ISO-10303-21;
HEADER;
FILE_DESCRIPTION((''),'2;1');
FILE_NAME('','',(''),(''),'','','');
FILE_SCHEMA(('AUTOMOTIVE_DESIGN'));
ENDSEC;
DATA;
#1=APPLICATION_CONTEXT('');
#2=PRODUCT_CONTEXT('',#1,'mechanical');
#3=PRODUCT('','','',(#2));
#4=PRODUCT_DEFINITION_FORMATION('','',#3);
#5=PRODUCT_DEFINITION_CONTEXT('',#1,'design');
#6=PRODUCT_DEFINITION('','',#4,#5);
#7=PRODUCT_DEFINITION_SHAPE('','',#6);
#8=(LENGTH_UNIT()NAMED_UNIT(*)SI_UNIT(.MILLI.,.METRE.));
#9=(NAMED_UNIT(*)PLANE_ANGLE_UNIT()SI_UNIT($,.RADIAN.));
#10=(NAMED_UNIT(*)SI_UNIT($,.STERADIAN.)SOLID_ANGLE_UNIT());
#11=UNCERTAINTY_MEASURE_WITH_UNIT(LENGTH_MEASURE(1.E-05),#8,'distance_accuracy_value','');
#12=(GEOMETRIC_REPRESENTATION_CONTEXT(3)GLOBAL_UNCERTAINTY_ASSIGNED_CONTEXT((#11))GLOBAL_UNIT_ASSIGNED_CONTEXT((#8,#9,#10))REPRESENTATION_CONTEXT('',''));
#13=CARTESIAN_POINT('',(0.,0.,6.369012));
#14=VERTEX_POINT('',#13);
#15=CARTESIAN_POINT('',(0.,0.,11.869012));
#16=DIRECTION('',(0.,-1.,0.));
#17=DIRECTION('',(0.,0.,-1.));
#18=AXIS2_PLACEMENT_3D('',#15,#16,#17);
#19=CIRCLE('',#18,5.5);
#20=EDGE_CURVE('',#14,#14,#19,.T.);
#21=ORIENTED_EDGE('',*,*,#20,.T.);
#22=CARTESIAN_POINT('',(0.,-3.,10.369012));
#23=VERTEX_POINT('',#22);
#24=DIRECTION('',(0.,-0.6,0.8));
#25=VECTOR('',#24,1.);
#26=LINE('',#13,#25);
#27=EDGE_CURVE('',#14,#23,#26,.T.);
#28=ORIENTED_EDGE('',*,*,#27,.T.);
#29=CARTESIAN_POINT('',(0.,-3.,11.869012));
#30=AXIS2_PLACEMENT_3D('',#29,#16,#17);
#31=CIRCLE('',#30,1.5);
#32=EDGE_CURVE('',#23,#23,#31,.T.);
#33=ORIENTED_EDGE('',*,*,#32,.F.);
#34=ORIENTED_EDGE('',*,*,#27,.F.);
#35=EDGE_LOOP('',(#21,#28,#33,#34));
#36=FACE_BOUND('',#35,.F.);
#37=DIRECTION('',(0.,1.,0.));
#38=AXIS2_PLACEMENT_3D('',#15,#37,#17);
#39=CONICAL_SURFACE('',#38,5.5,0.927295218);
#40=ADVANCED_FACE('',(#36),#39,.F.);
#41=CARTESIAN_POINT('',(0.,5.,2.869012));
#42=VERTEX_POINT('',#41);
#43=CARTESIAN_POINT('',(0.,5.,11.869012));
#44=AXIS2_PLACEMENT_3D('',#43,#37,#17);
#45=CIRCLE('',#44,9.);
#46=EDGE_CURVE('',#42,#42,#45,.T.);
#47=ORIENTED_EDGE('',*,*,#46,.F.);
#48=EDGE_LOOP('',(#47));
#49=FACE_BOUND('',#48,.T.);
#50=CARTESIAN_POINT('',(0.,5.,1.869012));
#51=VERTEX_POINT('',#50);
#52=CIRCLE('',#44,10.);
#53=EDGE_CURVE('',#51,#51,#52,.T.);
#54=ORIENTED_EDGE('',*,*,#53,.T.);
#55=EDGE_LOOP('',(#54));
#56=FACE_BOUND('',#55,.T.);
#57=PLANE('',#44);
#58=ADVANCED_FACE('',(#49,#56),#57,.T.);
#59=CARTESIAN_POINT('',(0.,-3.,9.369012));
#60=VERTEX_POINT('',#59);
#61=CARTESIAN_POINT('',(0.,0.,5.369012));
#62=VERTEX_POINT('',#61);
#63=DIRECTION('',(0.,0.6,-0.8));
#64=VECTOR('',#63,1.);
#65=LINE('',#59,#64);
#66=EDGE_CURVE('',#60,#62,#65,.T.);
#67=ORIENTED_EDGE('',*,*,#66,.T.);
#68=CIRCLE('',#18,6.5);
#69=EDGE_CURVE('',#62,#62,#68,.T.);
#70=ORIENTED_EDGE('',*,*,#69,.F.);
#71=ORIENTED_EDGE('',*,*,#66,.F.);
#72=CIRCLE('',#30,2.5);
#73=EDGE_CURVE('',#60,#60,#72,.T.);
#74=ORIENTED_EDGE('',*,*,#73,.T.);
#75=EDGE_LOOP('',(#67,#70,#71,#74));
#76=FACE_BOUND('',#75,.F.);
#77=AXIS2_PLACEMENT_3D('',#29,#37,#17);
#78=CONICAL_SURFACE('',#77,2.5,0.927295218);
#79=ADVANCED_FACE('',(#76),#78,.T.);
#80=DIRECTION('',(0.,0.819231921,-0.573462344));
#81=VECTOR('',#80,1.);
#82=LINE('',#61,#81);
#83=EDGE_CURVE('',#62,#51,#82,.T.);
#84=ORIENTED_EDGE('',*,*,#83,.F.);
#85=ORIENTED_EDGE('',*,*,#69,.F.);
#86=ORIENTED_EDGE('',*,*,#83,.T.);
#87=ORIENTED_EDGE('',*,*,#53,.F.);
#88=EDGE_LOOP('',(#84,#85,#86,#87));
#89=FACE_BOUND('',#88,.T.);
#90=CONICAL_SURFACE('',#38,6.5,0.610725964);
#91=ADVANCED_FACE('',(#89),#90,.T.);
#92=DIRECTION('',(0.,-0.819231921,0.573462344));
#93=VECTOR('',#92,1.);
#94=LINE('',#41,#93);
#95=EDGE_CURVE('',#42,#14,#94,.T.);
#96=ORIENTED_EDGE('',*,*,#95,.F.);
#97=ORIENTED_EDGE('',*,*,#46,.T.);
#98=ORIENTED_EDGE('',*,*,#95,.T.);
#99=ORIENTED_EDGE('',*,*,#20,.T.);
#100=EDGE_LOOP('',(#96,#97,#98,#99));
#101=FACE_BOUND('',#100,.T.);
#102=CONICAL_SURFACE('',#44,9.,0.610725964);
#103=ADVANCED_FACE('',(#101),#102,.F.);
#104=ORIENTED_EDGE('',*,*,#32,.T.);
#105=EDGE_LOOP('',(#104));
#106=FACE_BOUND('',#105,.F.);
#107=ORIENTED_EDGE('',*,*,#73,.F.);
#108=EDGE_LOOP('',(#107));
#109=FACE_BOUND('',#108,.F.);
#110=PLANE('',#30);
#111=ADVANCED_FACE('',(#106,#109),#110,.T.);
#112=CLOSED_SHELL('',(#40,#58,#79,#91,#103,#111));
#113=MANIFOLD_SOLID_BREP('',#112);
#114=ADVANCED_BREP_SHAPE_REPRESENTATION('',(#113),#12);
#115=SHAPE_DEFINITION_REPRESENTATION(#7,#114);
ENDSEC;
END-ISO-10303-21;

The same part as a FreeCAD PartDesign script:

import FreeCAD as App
import Part
import Sketcher
Q = App.Units.Quantity

doc = App.newDocument("Part")
body = doc.addObject("PartDesign::Body", "Body")

# Sketch on YZ plane
sketch1 = body.newObject("Sketcher::SketchObject", "Sketch")
sketch1.AttachmentSupport = (doc.getObject("YZ_Plane"), [""])
sketch1.MapMode = "FlatFace"
sketch1.addGeometry([
    Part.LineSegment(App.Vector(-3, 10.4, 0), App.Vector(-3, 9.4, 0)),
    Part.LineSegment(App.Vector(-3, 9.4, 0), App.Vector(0, 5.4, 0)),
    Part.LineSegment(App.Vector(0, 5.4, 0), App.Vector(0, 6.4, 0)),
    Part.LineSegment(App.Vector(0, 6.4, 0), App.Vector(-3, 10.4, 0)),
], False)
sketch1.addGeometry(Part.LineSegment(App.Vector(0, 11.9, 0), App.Vector(-3, 11.9, 0)), True)  # axis
sketch1.addConstraint([
    Sketcher.Constraint("Coincident", 0, 2, 1, 1),
    Sketcher.Constraint("Coincident", 1, 2, 2, 1),
    Sketcher.Constraint("Coincident", 2, 2, 3, 1),
    Sketcher.Constraint("Coincident", 3, 2, 0, 1),
    Sketcher.Constraint("Vertical", 0),
    Sketcher.Constraint("Vertical", 2),
    Sketcher.Constraint("Horizontal", 4),
    Sketcher.Constraint("PointOnObject", 1, 2, -2),
    Sketcher.Constraint("PointOnObject", 4, 1, -2),
    Sketcher.Constraint("Parallel", 1, 3),
    Sketcher.Constraint("Vertical", 3, 2, 4, 2),
    Sketcher.Constraint("DistanceX", 4, 2, 4, 1, Q("3 mm")),
    Sketcher.Constraint("DistanceY", 0, 2, 0, 1, Q("1 mm")),
    Sketcher.Constraint("Distance", 1, Q("5 mm")),
    Sketcher.Constraint("DistanceY", 3, 2, 4, 1, Q("1.5 mm")),
    Sketcher.Constraint("DistanceY", -1, 1, 1, 2, Q("5.369012 mm")),
])
revolution = body.newObject("PartDesign::Revolution", "Revolution")
revolution.Profile = sketch1
revolution.ReferenceAxis = (sketch1, ["Axis0"])
revolution.Angle = 360

# Sketch on YZ plane
sketch2 = body.newObject("Sketcher::SketchObject", "Sketch001")
sketch2.AttachmentSupport = (doc.getObject("YZ_Plane"), [""])
sketch2.MapMode = "FlatFace"
sketch2.addGeometry([
    Part.LineSegment(App.Vector(0, 6.4, 0), App.Vector(0, 5.4, 0)),
    Part.LineSegment(App.Vector(0, 5.4, 0), App.Vector(5, 1.9, 0)),
    Part.LineSegment(App.Vector(5, 1.9, 0), App.Vector(5, 2.9, 0)),
    Part.LineSegment(App.Vector(5, 2.9, 0), App.Vector(0, 6.4, 0)),
], False)
sketch2.addGeometry(Part.LineSegment(App.Vector(0, 11.9, 0), App.Vector(5, 11.9, 0)), True)  # axis
sketch2.addConstraint([
    Sketcher.Constraint("Coincident", 0, 2, 1, 1),
    Sketcher.Constraint("Coincident", 1, 2, 2, 1),
    Sketcher.Constraint("Coincident", 2, 2, 3, 1),
    Sketcher.Constraint("Coincident", 3, 2, 0, 1),
    Sketcher.Constraint("Vertical", 0),
    Sketcher.Constraint("Vertical", 2),
    Sketcher.Constraint("Horizontal", 4),
    Sketcher.Constraint("PointOnObject", 0, 2, -2),
    Sketcher.Constraint("PointOnObject", 4, 1, -2),
    Sketcher.Constraint("Parallel", 1, 3),
    Sketcher.Constraint("Vertical", 2, 2, 4, 2),
    Sketcher.Constraint("DistanceX", 4, 1, 4, 2, Q("5 mm")),
    Sketcher.Constraint("DistanceY", 0, 2, 0, 1, Q("1 mm")),
    Sketcher.Constraint("DistanceY", 2, 2, 4, 1, Q("9 mm")),
    Sketcher.Constraint("DistanceY", 1, 2, 0, 2, Q("3.5 mm")),
    Sketcher.Constraint("DistanceY", -1, 1, 0, 2, Q("5.369012 mm")),
])
revolution2 = body.newObject("PartDesign::Revolution", "Revolution001")
revolution2.Profile = sketch2
revolution2.ReferenceAxis = (sketch2, ["Axis0"])
revolution2.Angle = 360

doc.recompute()
